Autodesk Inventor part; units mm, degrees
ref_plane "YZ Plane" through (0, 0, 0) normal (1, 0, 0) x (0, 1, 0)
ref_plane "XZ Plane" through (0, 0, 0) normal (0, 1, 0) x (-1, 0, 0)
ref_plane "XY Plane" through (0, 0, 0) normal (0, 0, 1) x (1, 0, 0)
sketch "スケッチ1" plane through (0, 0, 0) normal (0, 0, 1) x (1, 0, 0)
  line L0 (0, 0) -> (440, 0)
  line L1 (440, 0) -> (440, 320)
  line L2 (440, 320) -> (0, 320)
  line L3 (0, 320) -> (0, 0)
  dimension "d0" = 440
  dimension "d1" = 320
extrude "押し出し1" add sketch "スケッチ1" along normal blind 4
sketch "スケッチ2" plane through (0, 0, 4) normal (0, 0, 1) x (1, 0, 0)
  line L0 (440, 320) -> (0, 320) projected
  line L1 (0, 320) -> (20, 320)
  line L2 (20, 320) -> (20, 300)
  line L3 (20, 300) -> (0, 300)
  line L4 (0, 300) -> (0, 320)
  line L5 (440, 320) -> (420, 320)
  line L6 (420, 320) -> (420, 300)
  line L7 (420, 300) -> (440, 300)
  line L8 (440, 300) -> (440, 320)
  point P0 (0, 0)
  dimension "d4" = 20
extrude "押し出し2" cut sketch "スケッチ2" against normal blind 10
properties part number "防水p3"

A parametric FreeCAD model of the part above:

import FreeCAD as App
import Part
import Sketcher

V = App.Vector


def add_polygon(sketch, points):
    """Adds a closed chain of lines whose ends are joined by coincident constraints."""
    first, n = sketch.GeometryCount, len(points)
    for a, b in zip(points, points[1:] + points[:1]):
        sketch.addGeometry(Part.LineSegment(App.Vector(*a, 0), App.Vector(*b, 0)), False)
    for i in range(n):
        sketch.addConstraint(Sketcher.Constraint("Coincident", first + i, 2, first + (i + 1) % n, 1))

doc = App.newDocument("Part")
body = doc.addObject("PartDesign::Body", "Body")

sketch1 = body.newObject("Sketcher::SketchObject", "Sketch")
sketch1.AttachmentSupport = (doc.getObject("XY_Plane"), [""])
sketch1.MapMode = "FlatFace"
add_polygon(sketch1, [(0, 320), (0, 0), (440, 0), (440, 320)])
sketch1.addConstraint([
    Sketcher.Constraint("Vertical", 0),
    Sketcher.Constraint("Horizontal", 1),
    Sketcher.Constraint("Vertical", 2),
    Sketcher.Constraint("Horizontal", 3),
    Sketcher.Constraint("Coincident", 0, 2, -1, 1),
    Sketcher.Constraint("DistanceX", 1, 1, 1, 2, 440.0),
    Sketcher.Constraint("DistanceY", 0, 2, 0, 1, 320.0),
])
pad1 = body.newObject("PartDesign::Pad", "Pad")
pad1.Profile = sketch1
pad1.Length = 4

sketch2 = body.newObject("Sketcher::SketchObject", "Sketch001")
sketch2.AttachmentSupport = (doc.getObject("XY_Plane"), [""])
sketch2.MapMode = "FlatFace"
sketch2.AttachmentOffset = App.Placement(V(0, 0, 4), App.Rotation())
add_polygon(sketch2, [(440, 300), (440, 320), (420, 320), (420, 300)])
add_polygon(sketch2, [(20, 300), (20, 320), (0, 320), (0, 300)])
sketch2.addConstraint([
    Sketcher.Constraint("Vertical", 0),
    Sketcher.Constraint("Horizontal", 1),
    Sketcher.Constraint("Vertical", 2),
    Sketcher.Constraint("Horizontal", 3),
    Sketcher.Constraint("Vertical", 4),
    Sketcher.Constraint("Horizontal", 5),
    Sketcher.Constraint("Vertical", 6),
    Sketcher.Constraint("Horizontal", 7),
    Sketcher.Constraint("PointOnObject", 5, 2, -2),
    Sketcher.Constraint("Horizontal", 1, 2, 4, 2),
    Sketcher.Constraint("Horizontal", 3, 2, 6, 2),
    Sketcher.Constraint("Equal", 3, 5),
    Sketcher.Constraint("Equal", 7, 0),
    Sketcher.Constraint("DistanceX", 1, 2, 1, 1, 20.0),
    Sketcher.Constraint("DistanceX", -1, 1, 0, 2, 440.0),
    Sketcher.Constraint("DistanceY", -1, 1, 0, 2, 320.0),
])
pocket1 = body.newObject("PartDesign::Pocket", "Pocket")
pocket1.Profile = sketch2
pocket1.Length = 10

doc.recompute()
